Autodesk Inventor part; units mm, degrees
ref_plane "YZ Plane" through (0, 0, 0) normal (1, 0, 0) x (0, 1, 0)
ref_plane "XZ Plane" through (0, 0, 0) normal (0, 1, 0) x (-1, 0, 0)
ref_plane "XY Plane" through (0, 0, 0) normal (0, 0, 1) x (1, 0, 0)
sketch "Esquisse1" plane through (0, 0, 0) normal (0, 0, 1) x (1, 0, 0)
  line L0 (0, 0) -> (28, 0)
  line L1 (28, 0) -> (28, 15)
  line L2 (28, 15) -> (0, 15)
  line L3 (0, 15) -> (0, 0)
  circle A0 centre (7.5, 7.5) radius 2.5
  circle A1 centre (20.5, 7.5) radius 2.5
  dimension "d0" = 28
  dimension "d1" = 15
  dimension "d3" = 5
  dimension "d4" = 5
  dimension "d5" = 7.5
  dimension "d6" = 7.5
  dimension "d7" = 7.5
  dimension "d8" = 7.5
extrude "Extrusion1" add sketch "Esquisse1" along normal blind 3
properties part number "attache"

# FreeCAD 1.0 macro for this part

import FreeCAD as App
import Part
import Sketcher
from FreeCAD import Vector
Q = App.Units.Quantity

doc = App.newDocument("Part")
body = doc.addObject("PartDesign::Body", "Body")

# Sketch on XY plane
sketch1 = body.newObject("Sketcher::SketchObject", "Sketch")
sketch1.AttachmentSupport = (doc.getObject("XY_Plane"), [""])
sketch1.MapMode = "FlatFace"
sketch1.addGeometry(Part.LineSegment(Vector(0, 15, 0), Vector(0, 0, 0)), False)
sketch1.addGeometry(Part.LineSegment(Vector(0, 0, 0), Vector(28, 0, 0)), False)
sketch1.addGeometry(Part.LineSegment(Vector(28, 0, 0), Vector(28, 15, 0)), False)
sketch1.addGeometry(Part.LineSegment(Vector(28, 15, 0), Vector(0, 15, 0)), False)
sketch1.addGeometry(Part.Circle(Vector(7.5, 7.5, 0), Vector(0, 0, 1), 2.5), False)
sketch1.addGeometry(Part.Circle(Vector(20.5, 7.5, 0), Vector(0, 0, 1), 2.5), False)
sketch1.addConstraint(Sketcher.Constraint("Coincident", 0, 2, 1, 1))
sketch1.addConstraint(Sketcher.Constraint("Coincident", 1, 2, 2, 1))
sketch1.addConstraint(Sketcher.Constraint("Coincident", 2, 2, 3, 1))
sketch1.addConstraint(Sketcher.Constraint("Coincident", 3, 2, 0, 1))
sketch1.addConstraint(Sketcher.Constraint("Vertical", 0))
sketch1.addConstraint(Sketcher.Constraint("Horizontal", 1))
sketch1.addConstraint(Sketcher.Constraint("Vertical", 2))
sketch1.addConstraint(Sketcher.Constraint("Horizontal", 3))
sketch1.addConstraint(Sketcher.Constraint("Coincident", 0, 2, -1, 1))
sketch1.addConstraint(Sketcher.Constraint("Equal", 4, 5))
sketch1.addConstraint(Sketcher.Constraint("Horizontal", 4, 3, 5, 3))
sketch1.addConstraint(Sketcher.Constraint("Diameter", 4, Q("5 mm")))
sketch1.addConstraint(Sketcher.Constraint("DistanceX", 1, 1, 1, 2, Q("28 mm")))
sketch1.addConstraint(Sketcher.Constraint("DistanceY", 0, 2, 0, 1, Q("15 mm")))
sketch1.addConstraint(Sketcher.Constraint("DistanceX", -1, 1, 4, 3, Q("7.5 mm")))
sketch1.addConstraint(Sketcher.Constraint("DistanceY", -1, 1, 4, 3, Q("7.5 mm")))
sketch1.addConstraint(Sketcher.Constraint("DistanceX", 5, 3, 1, 2, Q("7.5 mm")))
pad1 = body.newObject("PartDesign::Pad", "Pad")
pad1.Profile = sketch1
pad1.Length = 3

doc.recompute()
